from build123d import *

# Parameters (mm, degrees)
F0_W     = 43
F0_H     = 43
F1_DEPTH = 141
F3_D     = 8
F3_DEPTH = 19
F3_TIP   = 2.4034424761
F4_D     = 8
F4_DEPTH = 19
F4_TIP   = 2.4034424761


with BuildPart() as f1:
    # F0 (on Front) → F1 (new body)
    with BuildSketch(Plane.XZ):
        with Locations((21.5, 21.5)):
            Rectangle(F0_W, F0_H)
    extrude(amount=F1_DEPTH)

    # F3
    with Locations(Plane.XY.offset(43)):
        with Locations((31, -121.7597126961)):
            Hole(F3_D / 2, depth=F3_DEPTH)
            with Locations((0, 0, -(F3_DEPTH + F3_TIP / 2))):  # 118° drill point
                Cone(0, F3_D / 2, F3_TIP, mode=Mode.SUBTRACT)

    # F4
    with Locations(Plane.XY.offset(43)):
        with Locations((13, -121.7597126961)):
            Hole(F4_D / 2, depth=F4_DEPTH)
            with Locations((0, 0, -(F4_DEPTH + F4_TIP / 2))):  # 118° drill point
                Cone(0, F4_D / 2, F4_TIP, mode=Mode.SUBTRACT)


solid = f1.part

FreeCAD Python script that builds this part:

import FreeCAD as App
import Part
import Sketcher


def add_polygon(sketch, points):
    """Adds a closed chain of lines whose ends are joined by coincident constraints."""
    first, n = sketch.GeometryCount, len(points)
    for a, b in zip(points, points[1:] + points[:1]):
        sketch.addGeometry(Part.LineSegment(App.Vector(*a, 0), App.Vector(*b, 0)), False)
    for i in range(n):
        sketch.addConstraint(Sketcher.Constraint("Coincident", first + i, 2, first + (i + 1) % n, 1))

doc = App.newDocument("Part")
body = doc.addObject("PartDesign::Body", "Body")

# Sketch on XZ plane
sketch1 = body.newObject("Sketcher::SketchObject", "Sketch")
sketch1.AttachmentSupport = (doc.getObject("XZ_Plane"), [""])
sketch1.MapMode = "FlatFace"
add_polygon(sketch1, [(0, 43), (0, 0), (43, 0), (43, 43)])  # lines 0-3
sketch1.addConstraint([
    Sketcher.Constraint("Vertical", 0),
    Sketcher.Constraint("Horizontal", 1),
    Sketcher.Constraint("Vertical", 2),
    Sketcher.Constraint("Horizontal", 3),
    Sketcher.Constraint("Coincident", 0, 2, -1, 1),
    Sketcher.Constraint("Equal", 3, 0),
    Sketcher.Constraint("DistanceX", 1, 1, 1, 2, 43.0),
])
pad1 = body.newObject("PartDesign::Pad", "Pad")
pad1.Profile = sketch1
pad1.Length = 141

# Sketch on XY plane
sketch2 = body.newObject("Sketcher::SketchObject", "Sketch001")
sketch2.AttachmentSupport = (doc.getObject("XY_Plane"), [""])
sketch2.MapMode = "FlatFace"
sketch2.AttachmentOffset = App.Placement(App.Vector(0, 0, 43), App.Rotation())
sketch2.addGeometry(Part.Circle(App.Vector(31, -121.8, 0), App.Vector(0, 0, 1), 4), False)
sketch2.addConstraint([
    Sketcher.Constraint("Diameter", 0, 8.0),
    Sketcher.Constraint("DistanceX", -1, 1, 0, 3, 31.0),
    Sketcher.Constraint("DistanceY", 0, 3, -1, 1, 121.759713),
])
doc.recompute()
hole = body.newObject("PartDesign::Hole", "Hole")
hole.Profile = sketch2
hole.ThreadType = "None"
hole.Diameter = 8
hole.DepthType = "Dimension"
hole.Depth = 19
hole.DrillPoint = "Angled"
hole.DrillPointAngle = 118

# Sketch on XY plane
sketch3 = body.newObject("Sketcher::SketchObject", "Sketch002")
sketch3.AttachmentSupport = (doc.getObject("XY_Plane"), [""])
sketch3.MapMode = "FlatFace"
sketch3.AttachmentOffset = App.Placement(App.Vector(0, 0, 43), App.Rotation())
sketch3.addGeometry(Part.Circle(App.Vector(13, -121.8, 0), App.Vector(0, 0, 1), 4), False)
sketch3.addConstraint([
    Sketcher.Constraint("Diameter", 0, 8.0),
    Sketcher.Constraint("DistanceX", -1, 1, 0, 3, 13.0),
    Sketcher.Constraint("DistanceY", 0, 3, -1, 1, 121.759713),
])
doc.recompute()
hole2 = body.newObject("PartDesign::Hole", "Hole001")
hole2.Profile = sketch3
hole2.ThreadType = "None"
hole2.Diameter = 8
hole2.DepthType = "Dimension"
hole2.Depth = 19
hole2.DrillPoint = "Angled"
hole2.DrillPointAngle = 118

doc.recompute()
